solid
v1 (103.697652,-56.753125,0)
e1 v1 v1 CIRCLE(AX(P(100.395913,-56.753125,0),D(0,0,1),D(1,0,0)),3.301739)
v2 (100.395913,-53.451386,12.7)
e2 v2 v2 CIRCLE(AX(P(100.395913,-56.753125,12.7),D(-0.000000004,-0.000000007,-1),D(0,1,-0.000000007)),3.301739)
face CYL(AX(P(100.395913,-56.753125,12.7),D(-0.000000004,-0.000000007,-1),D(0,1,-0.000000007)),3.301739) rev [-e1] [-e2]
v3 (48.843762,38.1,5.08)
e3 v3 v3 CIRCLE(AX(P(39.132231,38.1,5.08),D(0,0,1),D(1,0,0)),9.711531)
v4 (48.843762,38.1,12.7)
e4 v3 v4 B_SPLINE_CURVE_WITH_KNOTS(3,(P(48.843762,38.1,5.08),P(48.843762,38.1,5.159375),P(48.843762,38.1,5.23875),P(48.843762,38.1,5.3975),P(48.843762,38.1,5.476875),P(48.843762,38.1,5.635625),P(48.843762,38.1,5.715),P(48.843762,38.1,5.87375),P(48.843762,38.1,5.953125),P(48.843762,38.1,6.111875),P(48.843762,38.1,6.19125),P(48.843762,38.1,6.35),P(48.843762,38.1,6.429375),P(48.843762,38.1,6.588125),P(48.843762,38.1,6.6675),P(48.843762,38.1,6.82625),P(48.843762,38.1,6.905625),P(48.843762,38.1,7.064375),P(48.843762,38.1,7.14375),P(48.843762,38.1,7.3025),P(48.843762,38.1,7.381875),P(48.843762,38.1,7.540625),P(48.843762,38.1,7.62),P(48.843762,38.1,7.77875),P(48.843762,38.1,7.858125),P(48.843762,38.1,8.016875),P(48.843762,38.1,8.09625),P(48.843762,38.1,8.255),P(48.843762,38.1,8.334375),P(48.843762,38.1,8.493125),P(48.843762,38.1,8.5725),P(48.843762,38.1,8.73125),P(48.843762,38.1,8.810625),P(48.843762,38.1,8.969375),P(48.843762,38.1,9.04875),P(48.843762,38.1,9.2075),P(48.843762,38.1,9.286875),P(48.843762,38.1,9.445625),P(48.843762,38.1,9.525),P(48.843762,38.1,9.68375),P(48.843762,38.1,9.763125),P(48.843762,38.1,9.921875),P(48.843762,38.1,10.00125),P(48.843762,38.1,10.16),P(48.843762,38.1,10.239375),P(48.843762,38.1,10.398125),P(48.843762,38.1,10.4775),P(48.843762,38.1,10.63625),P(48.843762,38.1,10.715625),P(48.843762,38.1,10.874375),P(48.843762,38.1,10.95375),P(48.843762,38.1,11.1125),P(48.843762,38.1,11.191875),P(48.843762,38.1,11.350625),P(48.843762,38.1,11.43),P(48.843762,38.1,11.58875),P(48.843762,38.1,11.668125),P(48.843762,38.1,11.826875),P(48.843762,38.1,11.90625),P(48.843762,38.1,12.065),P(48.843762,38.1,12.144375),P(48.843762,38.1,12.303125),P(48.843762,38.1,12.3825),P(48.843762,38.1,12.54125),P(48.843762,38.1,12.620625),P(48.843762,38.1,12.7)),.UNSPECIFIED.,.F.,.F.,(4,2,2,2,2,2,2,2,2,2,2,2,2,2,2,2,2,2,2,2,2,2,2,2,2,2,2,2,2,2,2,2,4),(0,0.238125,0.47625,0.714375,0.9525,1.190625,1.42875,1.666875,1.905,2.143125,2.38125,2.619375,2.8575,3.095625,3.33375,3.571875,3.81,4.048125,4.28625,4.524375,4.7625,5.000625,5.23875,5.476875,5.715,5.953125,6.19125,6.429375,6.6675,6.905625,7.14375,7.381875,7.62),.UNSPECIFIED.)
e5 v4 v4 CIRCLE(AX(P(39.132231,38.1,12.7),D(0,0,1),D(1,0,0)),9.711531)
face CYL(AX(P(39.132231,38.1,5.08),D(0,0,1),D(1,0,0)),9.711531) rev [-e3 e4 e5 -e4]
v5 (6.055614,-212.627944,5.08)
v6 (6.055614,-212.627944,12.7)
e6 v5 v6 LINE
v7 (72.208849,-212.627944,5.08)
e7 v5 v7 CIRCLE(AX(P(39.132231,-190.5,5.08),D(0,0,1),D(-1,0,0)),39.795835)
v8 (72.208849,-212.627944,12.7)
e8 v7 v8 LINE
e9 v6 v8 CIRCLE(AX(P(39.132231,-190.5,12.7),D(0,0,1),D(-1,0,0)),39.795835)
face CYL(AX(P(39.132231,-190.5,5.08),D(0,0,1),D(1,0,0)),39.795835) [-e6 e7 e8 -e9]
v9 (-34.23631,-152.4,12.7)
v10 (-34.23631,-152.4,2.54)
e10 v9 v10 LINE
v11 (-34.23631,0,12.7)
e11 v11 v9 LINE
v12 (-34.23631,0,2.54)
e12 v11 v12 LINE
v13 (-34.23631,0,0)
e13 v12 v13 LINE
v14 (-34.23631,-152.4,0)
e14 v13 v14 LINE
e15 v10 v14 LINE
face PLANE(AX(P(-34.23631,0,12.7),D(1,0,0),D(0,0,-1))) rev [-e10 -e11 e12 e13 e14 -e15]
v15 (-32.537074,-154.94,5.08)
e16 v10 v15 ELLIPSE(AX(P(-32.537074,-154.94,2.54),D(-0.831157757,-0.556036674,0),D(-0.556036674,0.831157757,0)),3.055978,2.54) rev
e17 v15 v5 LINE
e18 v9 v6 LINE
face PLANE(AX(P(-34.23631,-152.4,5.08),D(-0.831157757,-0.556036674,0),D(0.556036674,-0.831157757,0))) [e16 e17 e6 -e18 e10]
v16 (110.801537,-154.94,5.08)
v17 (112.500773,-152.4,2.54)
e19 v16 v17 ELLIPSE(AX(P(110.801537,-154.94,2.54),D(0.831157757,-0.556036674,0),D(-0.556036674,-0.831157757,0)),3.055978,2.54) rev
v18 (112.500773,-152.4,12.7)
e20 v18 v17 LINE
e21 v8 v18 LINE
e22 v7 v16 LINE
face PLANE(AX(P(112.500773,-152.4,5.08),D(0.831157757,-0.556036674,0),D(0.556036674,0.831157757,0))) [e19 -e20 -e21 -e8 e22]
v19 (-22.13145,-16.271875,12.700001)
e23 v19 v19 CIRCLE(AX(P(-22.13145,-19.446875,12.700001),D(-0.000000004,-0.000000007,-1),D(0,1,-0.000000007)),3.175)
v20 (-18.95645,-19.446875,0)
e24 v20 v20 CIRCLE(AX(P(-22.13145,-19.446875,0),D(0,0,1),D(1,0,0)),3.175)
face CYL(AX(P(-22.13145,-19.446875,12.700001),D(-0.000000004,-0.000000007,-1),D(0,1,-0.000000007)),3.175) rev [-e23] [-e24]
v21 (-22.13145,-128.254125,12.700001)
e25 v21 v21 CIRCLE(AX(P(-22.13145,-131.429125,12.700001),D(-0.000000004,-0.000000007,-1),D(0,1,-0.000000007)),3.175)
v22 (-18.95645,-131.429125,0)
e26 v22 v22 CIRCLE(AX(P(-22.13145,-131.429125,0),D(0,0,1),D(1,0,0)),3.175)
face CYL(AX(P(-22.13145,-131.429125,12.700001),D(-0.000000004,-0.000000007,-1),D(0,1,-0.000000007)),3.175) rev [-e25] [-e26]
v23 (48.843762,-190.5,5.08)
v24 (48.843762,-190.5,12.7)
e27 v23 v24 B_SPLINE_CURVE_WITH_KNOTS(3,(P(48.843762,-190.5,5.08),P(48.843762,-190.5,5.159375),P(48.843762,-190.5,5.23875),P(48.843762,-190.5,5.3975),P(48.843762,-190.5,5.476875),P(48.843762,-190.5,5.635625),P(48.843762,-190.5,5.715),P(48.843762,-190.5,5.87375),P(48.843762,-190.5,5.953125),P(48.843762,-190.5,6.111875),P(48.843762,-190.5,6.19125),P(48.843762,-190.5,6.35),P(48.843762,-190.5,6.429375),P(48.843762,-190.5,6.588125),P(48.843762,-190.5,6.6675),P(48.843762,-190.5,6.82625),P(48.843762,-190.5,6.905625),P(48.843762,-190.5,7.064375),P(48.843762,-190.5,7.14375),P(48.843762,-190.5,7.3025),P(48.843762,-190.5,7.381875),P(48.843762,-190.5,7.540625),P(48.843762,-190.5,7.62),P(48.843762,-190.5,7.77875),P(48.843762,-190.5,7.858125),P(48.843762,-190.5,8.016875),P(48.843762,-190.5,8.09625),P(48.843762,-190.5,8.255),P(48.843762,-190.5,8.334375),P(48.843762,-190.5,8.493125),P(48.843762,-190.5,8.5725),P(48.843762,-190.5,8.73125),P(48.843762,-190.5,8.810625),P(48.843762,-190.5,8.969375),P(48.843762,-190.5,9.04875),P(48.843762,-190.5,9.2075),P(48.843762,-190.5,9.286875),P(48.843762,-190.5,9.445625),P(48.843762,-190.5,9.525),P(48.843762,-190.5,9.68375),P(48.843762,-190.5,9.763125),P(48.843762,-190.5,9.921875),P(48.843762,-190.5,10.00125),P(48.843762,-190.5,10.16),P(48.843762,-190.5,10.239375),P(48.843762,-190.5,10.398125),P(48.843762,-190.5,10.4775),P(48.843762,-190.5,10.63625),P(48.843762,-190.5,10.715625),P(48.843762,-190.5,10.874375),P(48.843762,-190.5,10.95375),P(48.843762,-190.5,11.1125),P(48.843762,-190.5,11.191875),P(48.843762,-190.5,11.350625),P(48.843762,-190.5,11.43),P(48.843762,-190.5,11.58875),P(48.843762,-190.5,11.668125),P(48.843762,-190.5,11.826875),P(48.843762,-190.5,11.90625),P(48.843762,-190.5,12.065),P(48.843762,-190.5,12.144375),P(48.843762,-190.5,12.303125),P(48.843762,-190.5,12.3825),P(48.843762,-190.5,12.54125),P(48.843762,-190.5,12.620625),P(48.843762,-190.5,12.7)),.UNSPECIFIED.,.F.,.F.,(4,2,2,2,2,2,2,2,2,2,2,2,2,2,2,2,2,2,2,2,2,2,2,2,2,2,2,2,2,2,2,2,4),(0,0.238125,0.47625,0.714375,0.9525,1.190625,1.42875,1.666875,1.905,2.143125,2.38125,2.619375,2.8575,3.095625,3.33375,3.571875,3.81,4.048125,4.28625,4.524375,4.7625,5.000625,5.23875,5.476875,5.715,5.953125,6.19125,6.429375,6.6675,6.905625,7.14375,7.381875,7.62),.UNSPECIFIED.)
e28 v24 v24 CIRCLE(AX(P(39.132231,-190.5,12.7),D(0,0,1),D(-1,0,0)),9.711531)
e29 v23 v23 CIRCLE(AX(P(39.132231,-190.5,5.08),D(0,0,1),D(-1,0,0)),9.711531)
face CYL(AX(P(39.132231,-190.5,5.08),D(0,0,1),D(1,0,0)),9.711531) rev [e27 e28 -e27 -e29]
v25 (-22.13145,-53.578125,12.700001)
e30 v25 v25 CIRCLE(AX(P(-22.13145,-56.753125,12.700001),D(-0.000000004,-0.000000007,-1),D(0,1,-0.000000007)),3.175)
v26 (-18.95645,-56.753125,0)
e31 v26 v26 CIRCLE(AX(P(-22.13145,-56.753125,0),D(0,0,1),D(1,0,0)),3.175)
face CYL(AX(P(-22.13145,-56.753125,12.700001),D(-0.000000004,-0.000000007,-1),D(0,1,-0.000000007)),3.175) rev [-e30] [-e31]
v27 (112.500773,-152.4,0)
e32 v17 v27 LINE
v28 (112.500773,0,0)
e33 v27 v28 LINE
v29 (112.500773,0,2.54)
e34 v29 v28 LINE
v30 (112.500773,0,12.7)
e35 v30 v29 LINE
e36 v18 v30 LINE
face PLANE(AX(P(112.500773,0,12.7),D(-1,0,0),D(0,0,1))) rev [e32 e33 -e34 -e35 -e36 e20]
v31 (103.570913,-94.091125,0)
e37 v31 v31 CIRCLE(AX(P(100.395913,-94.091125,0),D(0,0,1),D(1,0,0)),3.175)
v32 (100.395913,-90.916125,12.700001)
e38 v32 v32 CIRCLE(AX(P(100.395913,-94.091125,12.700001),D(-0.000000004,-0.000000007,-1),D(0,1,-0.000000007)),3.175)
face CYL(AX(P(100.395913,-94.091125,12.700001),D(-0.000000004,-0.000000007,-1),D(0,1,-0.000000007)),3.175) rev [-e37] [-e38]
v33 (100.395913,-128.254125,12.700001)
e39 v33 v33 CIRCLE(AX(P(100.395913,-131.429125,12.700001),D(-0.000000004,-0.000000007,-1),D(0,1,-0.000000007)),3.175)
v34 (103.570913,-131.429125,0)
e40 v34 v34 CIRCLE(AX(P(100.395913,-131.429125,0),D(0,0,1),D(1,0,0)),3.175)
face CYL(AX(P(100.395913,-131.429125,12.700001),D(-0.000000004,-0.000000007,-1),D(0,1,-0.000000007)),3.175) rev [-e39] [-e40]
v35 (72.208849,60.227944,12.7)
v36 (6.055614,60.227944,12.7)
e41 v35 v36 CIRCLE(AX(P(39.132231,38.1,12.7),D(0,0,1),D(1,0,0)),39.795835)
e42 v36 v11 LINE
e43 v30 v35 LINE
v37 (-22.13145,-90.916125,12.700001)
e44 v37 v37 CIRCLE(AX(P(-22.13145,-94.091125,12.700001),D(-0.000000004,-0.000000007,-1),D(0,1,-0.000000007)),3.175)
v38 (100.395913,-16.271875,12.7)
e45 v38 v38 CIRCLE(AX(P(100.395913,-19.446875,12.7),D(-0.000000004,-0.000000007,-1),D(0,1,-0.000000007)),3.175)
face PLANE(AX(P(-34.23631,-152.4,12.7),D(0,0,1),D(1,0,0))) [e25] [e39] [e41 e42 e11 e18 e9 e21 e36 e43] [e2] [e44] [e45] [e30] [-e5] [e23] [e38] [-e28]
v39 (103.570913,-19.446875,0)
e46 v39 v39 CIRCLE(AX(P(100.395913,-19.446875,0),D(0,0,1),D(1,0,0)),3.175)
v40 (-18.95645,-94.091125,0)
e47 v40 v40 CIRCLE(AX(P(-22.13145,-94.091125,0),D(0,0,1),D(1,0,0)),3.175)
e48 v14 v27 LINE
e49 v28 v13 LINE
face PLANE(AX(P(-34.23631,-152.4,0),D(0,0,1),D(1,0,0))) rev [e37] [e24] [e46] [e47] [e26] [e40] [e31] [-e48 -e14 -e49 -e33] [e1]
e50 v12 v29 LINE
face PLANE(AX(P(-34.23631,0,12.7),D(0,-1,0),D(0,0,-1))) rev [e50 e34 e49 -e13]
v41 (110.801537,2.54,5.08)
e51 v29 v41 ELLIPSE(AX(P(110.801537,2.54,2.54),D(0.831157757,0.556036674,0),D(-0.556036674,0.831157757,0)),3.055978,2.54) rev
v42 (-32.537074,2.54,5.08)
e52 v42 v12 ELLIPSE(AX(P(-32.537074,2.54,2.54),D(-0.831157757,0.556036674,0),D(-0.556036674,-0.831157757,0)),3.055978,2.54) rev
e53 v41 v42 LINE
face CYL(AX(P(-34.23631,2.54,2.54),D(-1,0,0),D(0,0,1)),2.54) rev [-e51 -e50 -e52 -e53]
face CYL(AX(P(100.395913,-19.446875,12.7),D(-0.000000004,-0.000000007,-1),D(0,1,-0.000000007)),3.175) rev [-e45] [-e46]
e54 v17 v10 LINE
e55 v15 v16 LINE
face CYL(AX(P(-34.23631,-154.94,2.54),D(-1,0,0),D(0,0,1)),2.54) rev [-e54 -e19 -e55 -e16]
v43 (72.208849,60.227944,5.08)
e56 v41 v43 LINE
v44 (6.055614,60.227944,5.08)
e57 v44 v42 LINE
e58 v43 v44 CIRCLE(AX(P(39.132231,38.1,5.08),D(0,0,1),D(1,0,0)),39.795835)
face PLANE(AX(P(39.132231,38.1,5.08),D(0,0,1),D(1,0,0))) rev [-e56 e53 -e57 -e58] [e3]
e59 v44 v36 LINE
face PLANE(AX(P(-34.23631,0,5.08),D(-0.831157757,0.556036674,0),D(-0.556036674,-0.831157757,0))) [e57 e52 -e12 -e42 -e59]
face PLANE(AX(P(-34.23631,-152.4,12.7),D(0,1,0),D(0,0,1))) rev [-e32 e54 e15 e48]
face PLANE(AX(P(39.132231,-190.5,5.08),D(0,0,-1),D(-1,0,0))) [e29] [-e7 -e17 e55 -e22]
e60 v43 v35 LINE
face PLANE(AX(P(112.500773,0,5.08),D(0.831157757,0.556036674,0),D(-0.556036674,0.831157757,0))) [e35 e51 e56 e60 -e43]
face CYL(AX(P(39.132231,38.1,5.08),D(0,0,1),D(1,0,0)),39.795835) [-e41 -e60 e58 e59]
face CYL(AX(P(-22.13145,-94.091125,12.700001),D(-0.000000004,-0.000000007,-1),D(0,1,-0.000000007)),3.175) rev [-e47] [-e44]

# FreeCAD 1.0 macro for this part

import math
import FreeCAD as App
import Part
import Sketcher
Q = App.Units.Quantity


def edges_at(feature, points):
    """Names of the edges that pass closest to the given points."""
    edges = feature.Shape.Edges
    near = lambda p: min(range(len(edges)), key=lambda i: edges[i].distToShape(Part.Vertex(*p))[0])
    return sorted({f"Edge{near(p) + 1}" for p in points})


def add_polygon(sketch, points):
    """Adds a closed chain of lines whose ends are joined by coincident constraints."""
    first, n = sketch.GeometryCount, len(points)
    for a, b in zip(points, points[1:] + points[:1]):
        sketch.addGeometry(Part.LineSegment(App.Vector(*a, 0), App.Vector(*b, 0)), False)
    for i in range(n):
        sketch.addConstraint(Sketcher.Constraint("Coincident", first + i, 2, first + (i + 1) % n, 1))

doc = App.newDocument("Part")
body = doc.addObject("PartDesign::Body", "Body")

# Sketch on XY plane
sketch1 = body.newObject("Sketcher::SketchObject", "Sketch")
sketch1.AttachmentSupport = (doc.getObject("XY_Plane"), [""])
sketch1.MapMode = "FlatFace"
add_polygon(sketch1, [(-34.23631, 0), (-34.23631, -152.4), (112.500773, -152.4), (112.500773, 0)])  # lines 0-3
sketch1.addGeometry(Part.Circle(App.Vector(-22.13145, -19.446875, 0), App.Vector(0, 0, 1), 2.814871), False)  # 4
sketch1.addConstraint([
    Sketcher.Constraint("Vertical", 0),
    Sketcher.Constraint("Horizontal", 1),
    Sketcher.Constraint("Vertical", 2),
    Sketcher.Constraint("Horizontal", 3),
    Sketcher.Constraint("PointOnObject", 2, 2, -1),
    Sketcher.Constraint("DistanceY", 0, 2, 0, 1, Q("6 in")),
    Sketcher.Constraint("Diameter", 4, 5.629742),
    Sketcher.Constraint("DistanceY", 4, 3, -1, 1, Q("0.765625 in")),
    Sketcher.Constraint("DistanceX", 1, 1, 1, 2, 146.737083),
    Sketcher.Constraint("DistanceX", 4, 3, -1, 1, 22.13145),
    Sketcher.Constraint("DistanceX", 0, 2, -1, 1, 34.23631),
])
pad1 = body.newObject("PartDesign::Pad", "Pad")
pad1.Profile = sketch1
pad1.Length = Q("0.5 in")

# Sketch on XY plane
sketch2 = body.newObject("Sketcher::SketchObject", "Sketch001")
sketch2.AttachmentSupport = (doc.getObject("XY_Plane"), [""])
sketch2.MapMode = "FlatFace"
sketch2.AttachmentOffset = App.Placement(App.Vector(0, 0, -12.901274), App.Rotation())
sketch2.addGeometry([
    Part.Circle(App.Vector(100.395913, -19.446875, 0), App.Vector(0, 0, 1), 3.175),  # 0
    Part.Circle(App.Vector(100.395913, -56.753125, 0), App.Vector(0, 0, 1), 3.301739),  # 1
    Part.Circle(App.Vector(100.395913, -94.091125, 0), App.Vector(0, 0, 1), 3.175),  # 2
    Part.Circle(App.Vector(100.395913, -131.429125, 0), App.Vector(0, 0, 1), 3.175),  # 3
    Part.Circle(App.Vector(-22.13145, -56.753125, 0), App.Vector(0, 0, 1), 3.175),  # 4
    Part.Circle(App.Vector(-22.13145, -94.091125, 0), App.Vector(0, 0, 1), 3.175),  # 5
    Part.Circle(App.Vector(-22.13145, -131.429125, 0), App.Vector(0, 0, 1), 3.175),  # 6
    Part.Circle(App.Vector(-22.13145, -19.446875, 0), App.Vector(0, 0, 1), 3.175),  # 7
], False)
sketch2.addConstraint([
    Sketcher.Constraint("Equal", 0, 2),
    Sketcher.Constraint("Equal", 2, 3),
    Sketcher.Constraint("Equal", 3, 4),
    Sketcher.Constraint("Equal", 4, 5),
    Sketcher.Constraint("Equal", 5, 6),
    Sketcher.Constraint("Equal", 6, 7),
    Sketcher.Constraint("Horizontal", 1, 3, 4, 3),
    Sketcher.Constraint("Horizontal", 2, 3, 5, 3),
    Sketcher.Constraint("Horizontal", 3, 3, 6, 3),
    Sketcher.Constraint("Horizontal", 0, 3, 7, 3),
    Sketcher.Constraint("Vertical", 0, 3, 1, 3),
    Sketcher.Constraint("Vertical", 1, 3, 2, 3),
    Sketcher.Constraint("Vertical", 2, 3, 3, 3),
    Sketcher.Constraint("Vertical", 4, 3, 5, 3),
    Sketcher.Constraint("Vertical", 5, 3, 6, 3),
    Sketcher.Constraint("Vertical", 6, 3, 7, 3),
    Sketcher.Constraint("Diameter", 0, Q("0.25 in")),
    Sketcher.Constraint("DistanceY", 2, 3, 1, 3, Q("1.47 in")),
    Sketcher.Constraint("DistanceY", 3, 3, 2, 3, Q("1.47 in")),
    Sketcher.Constraint("Diameter", 1, 6.603478),
    Sketcher.Constraint("DistanceY", 0, 3, -1, 1, Q("0.765625 in")),
    Sketcher.Constraint("DistanceY", 1, 3, -1, 1, Q("2.234375 in")),
    Sketcher.Constraint("DistanceX", 4, 3, -1, 1, 22.13145),
    Sketcher.Constraint("DistanceX", -1, 1, 0, 3, 100.395913),
])
pocket1 = body.newObject("PartDesign::Pocket", "Pocket")
pocket1.Profile = sketch2
pocket1.Type = "ThroughAll"
pocket1.Reversed = True

# Sketch on XY plane
sketch3 = body.newObject("Sketcher::SketchObject", "Sketch002")
sketch3.AttachmentSupport = (doc.getObject("XY_Plane"), [""])
sketch3.MapMode = "FlatFace"
sketch3.AttachmentOffset = App.Placement(App.Vector(0, 0, 0.5 * 25.4), App.Rotation())
sketch3.addGeometry([
    Part.LineSegment(App.Vector(112.500773, -152.4, 0), App.Vector(-34.23631, -152.4, 0)),  # 0
    Part.LineSegment(App.Vector(-34.23631, -152.4, 0), App.Vector(6.055614, -212.627944, 0)),  # 1
    Part.ArcOfCircle(Part.Circle(App.Vector(39.132231, -190.5, 0), App.Vector(0, 0, 1), 39.795835), math.radians(-146.217852), math.radians(-33.782148)),  # 2
    Part.LineSegment(App.Vector(72.208849, -212.627944, 0), App.Vector(112.500773, -152.4, 0)),  # 3
    Part.Circle(App.Vector(39.132231, -190.5, 0), App.Vector(0, 0, 1), 9.711531),  # 4
    Part.LineSegment(App.Vector(-34.23631, 0, 0), App.Vector(112.500773, 0, 0)),  # 5
    Part.LineSegment(App.Vector(112.500773, 0, 0), App.Vector(72.208849, 60.227944, 0)),  # 6
    Part.ArcOfCircle(Part.Circle(App.Vector(39.132231, 38.1, 0), App.Vector(0, 0, 1), 39.795835), math.radians(33.782148), math.radians(146.217852)),  # 7
    Part.LineSegment(App.Vector(6.055614, 60.227944, 0), App.Vector(-34.23631, 0, 0)),  # 8
    Part.Circle(App.Vector(39.132231, 38.1, 0), App.Vector(0, 0, 1), 9.711531),  # 9
], False)
sketch3.addConstraint([
    Sketcher.Constraint("Coincident", 0, 2, 1, 1),
    Sketcher.Constraint("Tangent", 1, 2, 2, 1),
    Sketcher.Constraint("Tangent", 2, 2, 3, 1),
    Sketcher.Constraint("Coincident", 3, 2, 0, 1),
    Sketcher.Constraint("Coincident", 5, 2, 6, 1),
    Sketcher.Constraint("Tangent", 6, 2, 7, 1),
    Sketcher.Constraint("Tangent", 7, 2, 8, 1),
    Sketcher.Constraint("Coincident", 8, 2, 5, 1),
    Sketcher.Constraint("Horizontal", 0),
    Sketcher.Constraint("Horizontal", 5),
    Sketcher.Constraint("Coincident", 4, 3, 2, 3),
    Sketcher.Constraint("Coincident", 9, 3, 7, 3),
    Sketcher.Constraint("Equal", 2, 7),
    Sketcher.Constraint("Equal", 4, 9),
    Sketcher.Constraint("PointOnObject", 5, 2, -1),
    Sketcher.Constraint("Parallel", 1, 6),
    Sketcher.Constraint("Parallel", 3, 8),
    Sketcher.Constraint("Horizontal", 1, 2, 2, 2),
    Sketcher.Constraint("Vertical", 4, 3, 7, 3),
    Sketcher.Constraint("Vertical", 3, 2, 5, 2),
    Sketcher.Constraint("DistanceY", 0, 2, -1, 1, Q("6 in")),
    Sketcher.Constraint("DistanceY", 4, 3, 7, 3, Q("9 in")),
    Sketcher.Constraint("Diameter", 4, 19.423061),
    Sketcher.Constraint("Radius", 2, 39.795835),
    Sketcher.Constraint("Distance", 1, 72.46271),
    Sketcher.Constraint("DistanceX", -1, 1, 2, 3, 39.132231),
])
pad2 = body.newObject("PartDesign::Pad", "Pad001")
pad2.Profile = sketch3
pad2.Length = Q("0.3 in")
pad2.Reversed = True
doc.recompute()

fillet = body.newObject("PartDesign::Fillet", "Fillet")
fillet.Base = (pad2, edges_at(pad2, [(39.132, -152.4, 5.08), (39.132, 0, 5.08)]))
fillet.Radius = Q("0.1 in")

doc.recompute()
